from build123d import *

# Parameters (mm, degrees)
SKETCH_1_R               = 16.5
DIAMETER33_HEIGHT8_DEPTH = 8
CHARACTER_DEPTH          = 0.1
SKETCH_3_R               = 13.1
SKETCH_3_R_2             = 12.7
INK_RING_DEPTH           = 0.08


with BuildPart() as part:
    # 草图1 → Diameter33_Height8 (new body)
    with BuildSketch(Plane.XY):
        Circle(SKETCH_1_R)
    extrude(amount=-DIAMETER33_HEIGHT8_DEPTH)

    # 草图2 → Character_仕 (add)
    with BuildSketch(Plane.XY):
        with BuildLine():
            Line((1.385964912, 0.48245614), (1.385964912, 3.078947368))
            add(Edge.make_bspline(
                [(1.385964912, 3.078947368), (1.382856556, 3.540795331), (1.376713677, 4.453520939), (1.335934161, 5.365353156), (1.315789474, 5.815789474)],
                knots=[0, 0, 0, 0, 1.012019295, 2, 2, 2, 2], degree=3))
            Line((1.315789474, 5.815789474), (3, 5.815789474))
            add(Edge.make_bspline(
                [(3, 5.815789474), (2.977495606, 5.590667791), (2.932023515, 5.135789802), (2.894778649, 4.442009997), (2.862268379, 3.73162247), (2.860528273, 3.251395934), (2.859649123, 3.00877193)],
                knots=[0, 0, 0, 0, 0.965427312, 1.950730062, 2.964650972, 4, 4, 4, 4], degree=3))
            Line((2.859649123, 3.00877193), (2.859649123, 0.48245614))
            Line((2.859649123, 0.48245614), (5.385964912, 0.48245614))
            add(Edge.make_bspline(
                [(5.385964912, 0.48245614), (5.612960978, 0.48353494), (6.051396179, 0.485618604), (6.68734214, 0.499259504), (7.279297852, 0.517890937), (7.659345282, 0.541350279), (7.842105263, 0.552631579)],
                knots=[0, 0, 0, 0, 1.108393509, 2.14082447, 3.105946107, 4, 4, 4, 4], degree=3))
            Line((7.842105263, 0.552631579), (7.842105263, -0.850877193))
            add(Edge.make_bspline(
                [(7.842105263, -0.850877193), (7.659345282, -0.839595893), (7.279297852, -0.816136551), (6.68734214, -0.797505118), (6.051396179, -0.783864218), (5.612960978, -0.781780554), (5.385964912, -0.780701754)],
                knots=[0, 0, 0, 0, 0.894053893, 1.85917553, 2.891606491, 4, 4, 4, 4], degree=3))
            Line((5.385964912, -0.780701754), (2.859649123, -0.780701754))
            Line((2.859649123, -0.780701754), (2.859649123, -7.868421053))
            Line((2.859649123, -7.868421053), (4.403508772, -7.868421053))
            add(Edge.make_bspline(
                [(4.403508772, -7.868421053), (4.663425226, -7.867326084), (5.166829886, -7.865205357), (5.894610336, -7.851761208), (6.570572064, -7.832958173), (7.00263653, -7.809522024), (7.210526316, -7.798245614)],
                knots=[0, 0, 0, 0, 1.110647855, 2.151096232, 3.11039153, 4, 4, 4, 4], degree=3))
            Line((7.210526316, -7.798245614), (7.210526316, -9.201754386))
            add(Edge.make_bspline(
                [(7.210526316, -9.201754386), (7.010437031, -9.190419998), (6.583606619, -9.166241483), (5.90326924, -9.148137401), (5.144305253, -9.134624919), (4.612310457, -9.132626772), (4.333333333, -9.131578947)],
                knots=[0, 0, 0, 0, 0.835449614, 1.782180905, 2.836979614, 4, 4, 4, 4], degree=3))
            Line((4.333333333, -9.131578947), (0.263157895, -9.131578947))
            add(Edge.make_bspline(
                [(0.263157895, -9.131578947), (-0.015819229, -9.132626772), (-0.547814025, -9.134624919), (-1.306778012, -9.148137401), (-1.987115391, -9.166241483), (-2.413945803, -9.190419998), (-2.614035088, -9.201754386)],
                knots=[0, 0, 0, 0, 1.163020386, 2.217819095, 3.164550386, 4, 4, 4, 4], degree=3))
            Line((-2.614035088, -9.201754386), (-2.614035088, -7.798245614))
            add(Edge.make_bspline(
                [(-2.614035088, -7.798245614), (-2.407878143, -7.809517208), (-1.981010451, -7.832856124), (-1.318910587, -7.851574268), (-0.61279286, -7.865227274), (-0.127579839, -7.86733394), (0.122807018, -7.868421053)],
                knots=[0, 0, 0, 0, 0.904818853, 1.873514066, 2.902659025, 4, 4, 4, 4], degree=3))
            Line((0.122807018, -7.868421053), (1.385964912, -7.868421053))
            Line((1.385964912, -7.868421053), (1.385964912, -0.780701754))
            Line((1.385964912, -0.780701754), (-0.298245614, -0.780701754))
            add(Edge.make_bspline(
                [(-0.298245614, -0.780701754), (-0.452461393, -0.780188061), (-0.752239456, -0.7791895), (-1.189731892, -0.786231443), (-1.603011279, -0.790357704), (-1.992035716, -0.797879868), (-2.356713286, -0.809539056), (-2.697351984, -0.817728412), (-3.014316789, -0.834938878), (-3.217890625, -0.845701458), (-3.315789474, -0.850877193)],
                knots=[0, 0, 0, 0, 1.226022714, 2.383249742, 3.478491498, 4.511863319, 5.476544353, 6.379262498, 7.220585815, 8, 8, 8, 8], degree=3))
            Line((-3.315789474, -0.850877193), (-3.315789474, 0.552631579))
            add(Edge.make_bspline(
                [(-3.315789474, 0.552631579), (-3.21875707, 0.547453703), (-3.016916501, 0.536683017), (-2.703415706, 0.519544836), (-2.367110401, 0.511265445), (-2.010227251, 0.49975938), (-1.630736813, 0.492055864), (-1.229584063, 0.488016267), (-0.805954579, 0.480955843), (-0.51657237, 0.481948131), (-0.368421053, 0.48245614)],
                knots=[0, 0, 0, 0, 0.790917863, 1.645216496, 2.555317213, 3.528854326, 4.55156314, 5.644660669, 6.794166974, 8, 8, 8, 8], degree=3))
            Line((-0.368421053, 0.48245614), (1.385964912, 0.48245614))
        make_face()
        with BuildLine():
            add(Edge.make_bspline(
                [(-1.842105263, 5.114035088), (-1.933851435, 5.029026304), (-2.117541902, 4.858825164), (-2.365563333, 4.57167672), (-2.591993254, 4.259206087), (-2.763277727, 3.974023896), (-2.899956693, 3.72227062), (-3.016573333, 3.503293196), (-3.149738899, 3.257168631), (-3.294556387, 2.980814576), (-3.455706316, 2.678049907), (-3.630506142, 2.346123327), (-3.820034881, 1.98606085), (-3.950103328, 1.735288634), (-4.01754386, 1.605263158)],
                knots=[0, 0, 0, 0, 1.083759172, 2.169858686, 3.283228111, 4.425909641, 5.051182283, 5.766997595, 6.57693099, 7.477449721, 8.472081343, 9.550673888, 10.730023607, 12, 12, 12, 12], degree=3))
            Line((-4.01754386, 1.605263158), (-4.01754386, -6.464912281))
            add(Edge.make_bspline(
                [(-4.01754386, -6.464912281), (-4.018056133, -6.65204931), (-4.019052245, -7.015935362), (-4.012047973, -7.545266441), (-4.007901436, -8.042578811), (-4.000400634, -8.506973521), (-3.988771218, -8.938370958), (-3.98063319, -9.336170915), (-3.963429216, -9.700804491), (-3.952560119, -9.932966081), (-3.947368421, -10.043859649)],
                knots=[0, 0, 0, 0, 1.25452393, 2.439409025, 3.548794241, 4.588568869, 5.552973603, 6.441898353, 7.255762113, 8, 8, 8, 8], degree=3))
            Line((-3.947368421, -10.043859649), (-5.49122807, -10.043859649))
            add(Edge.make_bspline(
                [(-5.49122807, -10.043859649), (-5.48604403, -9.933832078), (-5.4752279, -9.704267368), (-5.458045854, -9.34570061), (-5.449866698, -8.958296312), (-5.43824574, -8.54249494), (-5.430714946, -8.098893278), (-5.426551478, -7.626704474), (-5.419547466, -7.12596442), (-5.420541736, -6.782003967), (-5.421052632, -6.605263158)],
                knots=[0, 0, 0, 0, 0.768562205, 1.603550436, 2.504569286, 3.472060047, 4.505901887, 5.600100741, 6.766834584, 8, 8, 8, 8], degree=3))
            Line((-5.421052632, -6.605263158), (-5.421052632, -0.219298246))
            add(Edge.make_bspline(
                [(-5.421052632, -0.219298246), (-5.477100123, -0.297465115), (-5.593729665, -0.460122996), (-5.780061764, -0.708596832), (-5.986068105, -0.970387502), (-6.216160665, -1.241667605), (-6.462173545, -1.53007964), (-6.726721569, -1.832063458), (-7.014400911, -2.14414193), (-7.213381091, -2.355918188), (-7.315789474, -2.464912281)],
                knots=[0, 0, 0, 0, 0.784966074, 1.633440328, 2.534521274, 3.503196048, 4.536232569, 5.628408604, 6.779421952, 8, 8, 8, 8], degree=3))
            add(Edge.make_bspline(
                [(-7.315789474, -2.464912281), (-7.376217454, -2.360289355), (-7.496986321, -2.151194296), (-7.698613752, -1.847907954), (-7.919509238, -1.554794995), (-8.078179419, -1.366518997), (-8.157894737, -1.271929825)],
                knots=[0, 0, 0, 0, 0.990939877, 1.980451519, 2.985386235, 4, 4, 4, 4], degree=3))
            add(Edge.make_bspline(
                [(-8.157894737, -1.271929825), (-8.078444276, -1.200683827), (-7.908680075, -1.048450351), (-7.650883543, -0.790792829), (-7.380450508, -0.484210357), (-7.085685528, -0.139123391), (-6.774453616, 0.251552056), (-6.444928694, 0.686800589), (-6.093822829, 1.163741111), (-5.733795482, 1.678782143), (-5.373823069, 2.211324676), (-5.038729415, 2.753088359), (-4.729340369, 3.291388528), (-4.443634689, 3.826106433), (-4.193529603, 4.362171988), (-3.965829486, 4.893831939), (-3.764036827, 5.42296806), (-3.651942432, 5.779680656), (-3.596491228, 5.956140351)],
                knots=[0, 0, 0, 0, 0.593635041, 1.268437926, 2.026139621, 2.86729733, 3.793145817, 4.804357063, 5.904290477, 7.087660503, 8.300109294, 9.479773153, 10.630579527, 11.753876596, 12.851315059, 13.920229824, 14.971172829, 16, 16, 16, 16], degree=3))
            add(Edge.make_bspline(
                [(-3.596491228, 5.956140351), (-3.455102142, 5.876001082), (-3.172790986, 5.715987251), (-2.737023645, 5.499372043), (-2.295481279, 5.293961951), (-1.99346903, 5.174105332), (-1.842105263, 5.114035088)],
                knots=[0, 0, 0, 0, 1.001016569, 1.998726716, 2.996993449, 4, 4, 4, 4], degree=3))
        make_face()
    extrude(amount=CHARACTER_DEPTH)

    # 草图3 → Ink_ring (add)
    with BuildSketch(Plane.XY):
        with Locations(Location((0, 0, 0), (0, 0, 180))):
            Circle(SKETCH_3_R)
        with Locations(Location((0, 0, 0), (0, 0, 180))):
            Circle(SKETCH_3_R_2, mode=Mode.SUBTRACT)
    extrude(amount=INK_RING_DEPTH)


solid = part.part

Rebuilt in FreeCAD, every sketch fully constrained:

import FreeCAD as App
import Part
import Sketcher
from FreeCAD import Vector

doc = App.newDocument("Part")
body = doc.addObject("PartDesign::Body", "Body")

# Sketch on XY plane
sketch1 = doc.addObject("Sketcher::SketchObject", "Sketch")
body.addObject(sketch1)
sketch1.AttachmentSupport = (doc.XY_Plane, [""])
sketch1.MapMode = "FlatFace"
sketch1.addGeometry(Part.Circle(Vector(0, 0, 0), Vector(0, 0, 1), 16.5), False)
sketch1.addConstraint([
    Sketcher.Constraint("Coincident", 0, 3, -1, 1),
    Sketcher.Constraint("Diameter", 0, 33.0),
])
pad1 = doc.addObject("PartDesign::Pad", "Pad")
body.addObject(pad1)
pad1.Profile = sketch1
pad1.Length = 8
pad1.Reversed = True

# Sketch on XY plane
sketch2 = doc.addObject("Sketcher::SketchObject", "Sketch001")
body.addObject(sketch2)
sketch2.AttachmentSupport = (doc.XY_Plane, [""])
sketch2.MapMode = "FlatFace"
sketch2.addGeometry([
    Part.LineSegment(Vector(1.385965, 3.078947, 0), Vector(1.385965, 0.482456, 0)),  # 0
    Part.LineSegment(Vector(1.385965, 0.482456, 0), Vector(-0.368421, 0.482456, 0)),  # 1
    Part.BSplineCurve([Vector(-3.315789, 0.552632, 0), Vector(-3.218757, 0.547454, 0), Vector(-3.016917, 0.536683, 0), Vector(-2.703416, 0.519545, 0), Vector(-2.36711, 0.511265, 0), Vector(-2.010227, 0.499759, 0), Vector(-1.630737, 0.492056, 0), Vector(-1.229584, 0.488016, 0), Vector(-0.805955, 0.480956, 0), Vector(-0.516572, 0.481948, 0), Vector(-0.368421, 0.482456, 0)], [4, 1, 1, 1, 1, 1, 1, 1, 4], [0, 0.790917863, 1.645216496, 2.555317213, 3.528854326, 4.55156314, 5.644660669, 6.794166974, 8], False, 3, [1, 1, 1, 1, 1, 1, 1, 1, 1, 1, 1], False),  # 2
    Part.LineSegment(Vector(-3.315789, 0.552632, 0), Vector(-3.315789, -0.850877, 0)),  # 3
    Part.BSplineCurve([Vector(-0.298246, -0.780702, 0), Vector(-0.452461, -0.780188, 0), Vector(-0.752239, -0.779189, 0), Vector(-1.189732, -0.786231, 0), Vector(-1.603011, -0.790358, 0), Vector(-1.992036, -0.79788, 0), Vector(-2.356713, -0.809539, 0), Vector(-2.697352, -0.817728, 0), Vector(-3.014317, -0.834939, 0), Vector(-3.217891, -0.845701, 0), Vector(-3.315789, -0.850877, 0)], [4, 1, 1, 1, 1, 1, 1, 1, 4], [0, 1.226022714, 2.383249742, 3.478491498, 4.511863319, 5.476544353, 6.379262498, 7.220585815, 8], False, 3, [1, 1, 1, 1, 1, 1, 1, 1, 1, 1, 1], False),  # 4
    Part.LineSegment(Vector(-0.298246, -0.780702, 0), Vector(1.385965, -0.780702, 0)),  # 5
    Part.LineSegment(Vector(1.385965, -0.780702, 0), Vector(1.385965, -7.868421, 0)),  # 6
    Part.LineSegment(Vector(1.385965, -7.868421, 0), Vector(0.122807, -7.868421, 0)),  # 7
    Part.BSplineCurve([Vector(-2.614035, -7.798246, 0), Vector(-2.407878, -7.809517, 0), Vector(-1.98101, -7.832856, 0), Vector(-1.318911, -7.851574, 0), Vector(-0.612793, -7.865227, 0), Vector(-0.12758, -7.867334, 0), Vector(0.122807, -7.868421, 0)], [4, 1, 1, 1, 4], [0, 0.904818853, 1.873514066, 2.902659025, 4], False, 3, [1, 1, 1, 1, 1, 1, 1], False),  # 8
    Part.LineSegment(Vector(-2.614035, -7.798246, 0), Vector(-2.614035, -9.201754, 0)),  # 9
    Part.BSplineCurve([Vector(0.263158, -9.131579, 0), Vector(-0.015819, -9.132627, 0), Vector(-0.547814, -9.134625, 0), Vector(-1.306778, -9.148137, 0), Vector(-1.987115, -9.166241, 0), Vector(-2.413946, -9.19042, 0), Vector(-2.614035, -9.201754, 0)], [4, 1, 1, 1, 4], [0, 1.163020386, 2.217819095, 3.164550386, 4], False, 3, [1, 1, 1, 1, 1, 1, 1], False),  # 10
    Part.LineSegment(Vector(0.263158, -9.131579, 0), Vector(4.333333, -9.131579, 0)),  # 11
    Part.BSplineCurve([Vector(7.210526, -9.201754, 0), Vector(7.010437, -9.19042, 0), Vector(6.583607, -9.166241, 0), Vector(5.903269, -9.148137, 0), Vector(5.144305, -9.134625, 0), Vector(4.61231, -9.132627, 0), Vector(4.333333, -9.131579, 0)], [4, 1, 1, 1, 4], [0, 0.835449614, 1.782180905, 2.836979614, 4], False, 3, [1, 1, 1, 1, 1, 1, 1], False),  # 12
    Part.LineSegment(Vector(7.210526, -9.201754, 0), Vector(7.210526, -7.798246, 0)),  # 13
    Part.BSplineCurve([Vector(4.403509, -7.868421, 0), Vector(4.663425, -7.867326, 0), Vector(5.16683, -7.865205, 0), Vector(5.89461, -7.851761, 0), Vector(6.570572, -7.832958, 0), Vector(7.002637, -7.809522, 0), Vector(7.210526, -7.798246, 0)], [4, 1, 1, 1, 4], [0, 1.110647855, 2.151096232, 3.11039153, 4], False, 3, [1, 1, 1, 1, 1, 1, 1], False),  # 14
    Part.LineSegment(Vector(4.403509, -7.868421, 0), Vector(2.859649, -7.868421, 0)),  # 15
    Part.LineSegment(Vector(2.859649, -7.868421, 0), Vector(2.859649, -0.780702, 0)),  # 16
    Part.LineSegment(Vector(2.859649, -0.780702, 0), Vector(5.385965, -0.780702, 0)),  # 17
    Part.BSplineCurve([Vector(7.842105, -0.850877, 0), Vector(7.659345, -0.839596, 0), Vector(7.279298, -0.816137, 0), Vector(6.687342, -0.797505, 0), Vector(6.051396, -0.783864, 0), Vector(5.612961, -0.781781, 0), Vector(5.385965, -0.780702, 0)], [4, 1, 1, 1, 4], [0, 0.894053893, 1.85917553, 2.891606491, 4], False, 3, [1, 1, 1, 1, 1, 1, 1], False),  # 18
    Part.LineSegment(Vector(7.842105, -0.850877, 0), Vector(7.842105, 0.552632, 0)),  # 19
    Part.BSplineCurve([Vector(5.385965, 0.482456, 0), Vector(5.612961, 0.483535, 0), Vector(6.051396, 0.485619, 0), Vector(6.687342, 0.49926, 0), Vector(7.279298, 0.517891, 0), Vector(7.659345, 0.54135, 0), Vector(7.842105, 0.552632, 0)], [4, 1, 1, 1, 4], [0, 1.108393509, 2.14082447, 3.105946107, 4], False, 3, [1, 1, 1, 1, 1, 1, 1], False),  # 20
    Part.LineSegment(Vector(5.385965, 0.482456, 0), Vector(2.859649, 0.482456, 0)),  # 21
    Part.LineSegment(Vector(2.859649, 0.482456, 0), Vector(2.859649, 3.008772, 0)),  # 22
    Part.BSplineCurve([Vector(3, 5.815789, 0), Vector(2.977496, 5.590668, 0), Vector(2.932024, 5.13579, 0), Vector(2.894779, 4.44201, 0), Vector(2.862268, 3.731622, 0), Vector(2.860528, 3.251396, 0), Vector(2.859649, 3.008772, 0)], [4, 1, 1, 1, 4], [0, 0.965427312, 1.950730062, 2.964650972, 4], False, 3, [1, 1, 1, 1, 1, 1, 1], False),  # 23
    Part.LineSegment(Vector(3, 5.815789, 0), Vector(1.315789, 5.815789, 0)),  # 24
    Part.BSplineCurve([Vector(1.385965, 3.078947, 0), Vector(1.382857, 3.540795, 0), Vector(1.376714, 4.453521, 0), Vector(1.335934, 5.365353, 0), Vector(1.315789, 5.815789, 0)], [4, 1, 4], [0, 1.012019295, 2], False, 3, [1, 1, 1, 1, 1], False),  # 25
    Part.BSplineCurve([Vector(-1.842105, 5.114035, 0), Vector(-1.933851, 5.029026, 0), Vector(-2.117542, 4.858825, 0), Vector(-2.365563, 4.571677, 0), Vector(-2.591993, 4.259206, 0), Vector(-2.763278, 3.974024, 0), Vector(-2.899957, 3.722271, 0), Vector(-3.016573, 3.503293, 0), Vector(-3.149739, 3.257169, 0), Vector(-3.294556, 2.980815, 0), Vector(-3.455706, 2.67805, 0), Vector(-3.630506, 2.346123, 0), Vector(-3.820035, 1.986061, 0), Vector(-3.950103, 1.735289, 0), Vector(-4.017544, 1.605263, 0)], [4, 1, 1, 1, 1, 1, 1, 1, 1, 1, 1, 1, 4], [0, 1.083759172, 2.169858686, 3.283228111, 4.425909641, 5.051182283, 5.766997595, 6.57693099, 7.477449721, 8.472081343, 9.550673888, 10.730023607, 12], False, 3, [1, 1, 1, 1, 1, 1, 1, 1, 1, 1, 1, 1, 1, 1, 1], False),  # 26
    Part.BSplineCurve([Vector(-3.596491, 5.95614, 0), Vector(-3.455102, 5.876001, 0), Vector(-3.172791, 5.715987, 0), Vector(-2.737024, 5.499372, 0), Vector(-2.295481, 5.293962, 0), Vector(-1.993469, 5.174105, 0), Vector(-1.842105, 5.114035, 0)], [4, 1, 1, 1, 4], [0, 1.001016569, 1.998726716, 2.996993449, 4], False, 3, [1, 1, 1, 1, 1, 1, 1], False),  # 27
    Part.BSplineCurve([Vector(-8.157895, -1.27193, 0), Vector(-8.078444, -1.200684, 0), Vector(-7.90868, -1.04845, 0), Vector(-7.650884, -0.790793, 0), Vector(-7.380451, -0.48421, 0), Vector(-7.085686, -0.139123, 0), Vector(-6.774454, 0.251552, 0), Vector(-6.444929, 0.686801, 0), Vector(-6.093823, 1.163741, 0), Vector(-5.733795, 1.678782, 0), Vector(-5.373823, 2.211325, 0), Vector(-5.038729, 2.753088, 0), Vector(-4.72934, 3.291389, 0), Vector(-4.443635, 3.826106, 0), Vector(-4.19353, 4.362172, 0), Vector(-3.965829, 4.893832, 0), Vector(-3.764037, 5.422968, 0), Vector(-3.651942, 5.779681, 0), Vector(-3.596491, 5.95614, 0)], [4, 1, 1, 1, 1, 1, 1, 1, 1, 1, 1, 1, 1, 1, 1, 1, 4], [0, 0.593635041, 1.268437926, 2.026139621, 2.86729733, 3.793145817, 4.804357063, 5.904290477, 7.087660503, 8.300109294, 9.479773153, 10.630579527, 11.753876596, 12.851315059, 13.920229824, 14.971172829, 16], False, 3, [1, 1, 1, 1, 1, 1, 1, 1, 1, 1, 1, 1, 1, 1, 1, 1, 1, 1, 1], False),  # 28
    Part.BSplineCurve([Vector(-7.315789, -2.464912, 0), Vector(-7.376217, -2.360289, 0), Vector(-7.496986, -2.151194, 0), Vector(-7.698614, -1.847908, 0), Vector(-7.919509, -1.554795, 0), Vector(-8.078179, -1.366519, 0), Vector(-8.157895, -1.27193, 0)], [4, 1, 1, 1, 4], [0, 0.990939877, 1.980451519, 2.985386235, 4], False, 3, [1, 1, 1, 1, 1, 1, 1], False),  # 29
    Part.BSplineCurve([Vector(-5.421053, -0.219298, 0), Vector(-5.4771, -0.297465, 0), Vector(-5.59373, -0.460123, 0), Vector(-5.780062, -0.708597, 0), Vector(-5.986068, -0.970388, 0), Vector(-6.216161, -1.241668, 0), Vector(-6.462174, -1.53008, 0), Vector(-6.726722, -1.832063, 0), Vector(-7.014401, -2.144142, 0), Vector(-7.213381, -2.355918, 0), Vector(-7.315789, -2.464912, 0)], [4, 1, 1, 1, 1, 1, 1, 1, 4], [0, 0.784966074, 1.633440328, 2.534521274, 3.503196048, 4.536232569, 5.628408604, 6.779421952, 8], False, 3, [1, 1, 1, 1, 1, 1, 1, 1, 1, 1, 1], False),  # 30
    Part.LineSegment(Vector(-5.421053, -0.219298, 0), Vector(-5.421053, -6.605263, 0)),  # 31
    Part.BSplineCurve([Vector(-5.491228, -10.04386, 0), Vector(-5.486044, -9.933832, 0), Vector(-5.475228, -9.704267, 0), Vector(-5.458046, -9.345701, 0), Vector(-5.449867, -8.958296, 0), Vector(-5.438246, -8.542495, 0), Vector(-5.430715, -8.098893, 0), Vector(-5.426551, -7.626704, 0), Vector(-5.419547, -7.125964, 0), Vector(-5.420542, -6.782004, 0), Vector(-5.421053, -6.605263, 0)], [4, 1, 1, 1, 1, 1, 1, 1, 4], [0, 0.768562205, 1.603550436, 2.504569286, 3.472060047, 4.505901887, 5.600100741, 6.766834584, 8], False, 3, [1, 1, 1, 1, 1, 1, 1, 1, 1, 1, 1], False),  # 32
    Part.LineSegment(Vector(-5.491228, -10.04386, 0), Vector(-3.947368, -10.04386, 0)),  # 33
    Part.BSplineCurve([Vector(-4.017544, -6.464912, 0), Vector(-4.018056, -6.652049, 0), Vector(-4.019052, -7.015935, 0), Vector(-4.012048, -7.545266, 0), Vector(-4.007901, -8.042579, 0), Vector(-4.000401, -8.506974, 0), Vector(-3.988771, -8.938371, 0), Vector(-3.980633, -9.336171, 0), Vector(-3.963429, -9.700804, 0), Vector(-3.95256, -9.932966, 0), Vector(-3.947368, -10.04386, 0)], [4, 1, 1, 1, 1, 1, 1, 1, 4], [0, 1.25452393, 2.439409025, 3.548794241, 4.588568869, 5.552973603, 6.441898353, 7.255762113, 8], False, 3, [1, 1, 1, 1, 1, 1, 1, 1, 1, 1, 1], False),  # 34
    Part.LineSegment(Vector(-4.017544, -6.464912, 0), Vector(-4.017544, 1.605263, 0)),  # 35
], False)
sketch2.addConstraint([
    Sketcher.Constraint("Block", 2),
    Sketcher.Constraint("Block", 4),
    Sketcher.Constraint("Block", 8),
    Sketcher.Constraint("Block", 10),
    Sketcher.Constraint("Block", 12),
    Sketcher.Constraint("Block", 14),
    Sketcher.Constraint("Block", 18),
    Sketcher.Constraint("Block", 20),
    Sketcher.Constraint("Block", 23),
    Sketcher.Constraint("Block", 25),
    Sketcher.Constraint("Block", 26),
    Sketcher.Constraint("Block", 27),
    Sketcher.Constraint("Block", 28),
    Sketcher.Constraint("Block", 29),
    Sketcher.Constraint("Block", 30),
    Sketcher.Constraint("Block", 32),
    Sketcher.Constraint("Block", 34),
    Sketcher.Constraint("Coincident", 0, 2, 1, 1),
    Sketcher.Constraint("Coincident", 1, 2, 2, 2),
    Sketcher.Constraint("Coincident", 2, 1, 3, 1),
    Sketcher.Constraint("Coincident", 3, 2, 4, 2),
    Sketcher.Constraint("Coincident", 4, 1, 5, 1),
    Sketcher.Constraint("Coincident", 5, 2, 6, 1),
    Sketcher.Constraint("Coincident", 6, 2, 7, 1),
    Sketcher.Constraint("Coincident", 7, 2, 8, 2),
    Sketcher.Constraint("Coincident", 8, 1, 9, 1),
    Sketcher.Constraint("Coincident", 9, 2, 10, 2),
    Sketcher.Constraint("Coincident", 10, 1, 11, 1),
    Sketcher.Constraint("Coincident", 11, 2, 12, 2),
    Sketcher.Constraint("Coincident", 12, 1, 13, 1),
    Sketcher.Constraint("Coincident", 13, 2, 14, 2),
    Sketcher.Constraint("Coincident", 14, 1, 15, 1),
    Sketcher.Constraint("Coincident", 15, 2, 16, 1),
    Sketcher.Constraint("Coincident", 16, 2, 17, 1),
    Sketcher.Constraint("Coincident", 17, 2, 18, 2),
    Sketcher.Constraint("Coincident", 18, 1, 19, 1),
    Sketcher.Constraint("Coincident", 19, 2, 20, 2),
    Sketcher.Constraint("Coincident", 20, 1, 21, 1),
    Sketcher.Constraint("Coincident", 21, 2, 22, 1),
    Sketcher.Constraint("Coincident", 22, 2, 23, 2),
    Sketcher.Constraint("Coincident", 23, 1, 24, 1),
    Sketcher.Constraint("Coincident", 24, 2, 25, 2),
    Sketcher.Constraint("Coincident", 25, 1, 0, 1),
    Sketcher.Constraint("Coincident", 30, 1, 31, 1),
    Sketcher.Constraint("Coincident", 31, 2, 32, 2),
    Sketcher.Constraint("Coincident", 32, 1, 33, 1),
    Sketcher.Constraint("Coincident", 33, 2, 34, 2),
    Sketcher.Constraint("Coincident", 34, 1, 35, 1),
    Sketcher.Constraint("Coincident", 35, 2, 26, 2),
    Sketcher.Constraint("Vertical", 0),
    Sketcher.Constraint("Horizontal", 1),
    Sketcher.Constraint("Horizontal", 5),
    Sketcher.Constraint("Vertical", 6),
    Sketcher.Constraint("Horizontal", 7),
    Sketcher.Constraint("Horizontal", 15),
    Sketcher.Constraint("Vertical", 16),
    Sketcher.Constraint("Horizontal", 17),
    Sketcher.Constraint("Horizontal", 21),
    Sketcher.Constraint("Vertical", 22),
    Sketcher.Constraint("Vertical", 0, 2, 5, 2),
    Sketcher.Constraint("Vertical", 16, 2, 21, 2),
])
pad2 = doc.addObject("PartDesign::Pad", "Pad001")
body.addObject(pad2)
pad2.Profile = sketch2
pad2.Length = 0.1

# Sketch on XY plane
sketch3 = doc.addObject("Sketcher::SketchObject", "Sketch002")
body.addObject(sketch3)
sketch3.AttachmentSupport = (doc.XY_Plane, [""])
sketch3.MapMode = "FlatFace"
sketch3.addGeometry([
    Part.Circle(Vector(0, 0, 0), Vector(0, 0, 1), 13.1),
    Part.Circle(Vector(0, 0, 0), Vector(0, 0, 1), 12.7),
], False)
sketch3.addConstraint([
    Sketcher.Constraint("Coincident", 0, 3, -1, 1),
    Sketcher.Constraint("Coincident", 1, 3, -1, 1),
    Sketcher.Constraint("Diameter", 0, 26.2),
    Sketcher.Constraint("Diameter", 1, 25.4),
])
pad3 = doc.addObject("PartDesign::Pad", "Pad002")
body.addObject(pad3)
pad3.Profile = sketch3
pad3.Length = 0.08

doc.recompute()
